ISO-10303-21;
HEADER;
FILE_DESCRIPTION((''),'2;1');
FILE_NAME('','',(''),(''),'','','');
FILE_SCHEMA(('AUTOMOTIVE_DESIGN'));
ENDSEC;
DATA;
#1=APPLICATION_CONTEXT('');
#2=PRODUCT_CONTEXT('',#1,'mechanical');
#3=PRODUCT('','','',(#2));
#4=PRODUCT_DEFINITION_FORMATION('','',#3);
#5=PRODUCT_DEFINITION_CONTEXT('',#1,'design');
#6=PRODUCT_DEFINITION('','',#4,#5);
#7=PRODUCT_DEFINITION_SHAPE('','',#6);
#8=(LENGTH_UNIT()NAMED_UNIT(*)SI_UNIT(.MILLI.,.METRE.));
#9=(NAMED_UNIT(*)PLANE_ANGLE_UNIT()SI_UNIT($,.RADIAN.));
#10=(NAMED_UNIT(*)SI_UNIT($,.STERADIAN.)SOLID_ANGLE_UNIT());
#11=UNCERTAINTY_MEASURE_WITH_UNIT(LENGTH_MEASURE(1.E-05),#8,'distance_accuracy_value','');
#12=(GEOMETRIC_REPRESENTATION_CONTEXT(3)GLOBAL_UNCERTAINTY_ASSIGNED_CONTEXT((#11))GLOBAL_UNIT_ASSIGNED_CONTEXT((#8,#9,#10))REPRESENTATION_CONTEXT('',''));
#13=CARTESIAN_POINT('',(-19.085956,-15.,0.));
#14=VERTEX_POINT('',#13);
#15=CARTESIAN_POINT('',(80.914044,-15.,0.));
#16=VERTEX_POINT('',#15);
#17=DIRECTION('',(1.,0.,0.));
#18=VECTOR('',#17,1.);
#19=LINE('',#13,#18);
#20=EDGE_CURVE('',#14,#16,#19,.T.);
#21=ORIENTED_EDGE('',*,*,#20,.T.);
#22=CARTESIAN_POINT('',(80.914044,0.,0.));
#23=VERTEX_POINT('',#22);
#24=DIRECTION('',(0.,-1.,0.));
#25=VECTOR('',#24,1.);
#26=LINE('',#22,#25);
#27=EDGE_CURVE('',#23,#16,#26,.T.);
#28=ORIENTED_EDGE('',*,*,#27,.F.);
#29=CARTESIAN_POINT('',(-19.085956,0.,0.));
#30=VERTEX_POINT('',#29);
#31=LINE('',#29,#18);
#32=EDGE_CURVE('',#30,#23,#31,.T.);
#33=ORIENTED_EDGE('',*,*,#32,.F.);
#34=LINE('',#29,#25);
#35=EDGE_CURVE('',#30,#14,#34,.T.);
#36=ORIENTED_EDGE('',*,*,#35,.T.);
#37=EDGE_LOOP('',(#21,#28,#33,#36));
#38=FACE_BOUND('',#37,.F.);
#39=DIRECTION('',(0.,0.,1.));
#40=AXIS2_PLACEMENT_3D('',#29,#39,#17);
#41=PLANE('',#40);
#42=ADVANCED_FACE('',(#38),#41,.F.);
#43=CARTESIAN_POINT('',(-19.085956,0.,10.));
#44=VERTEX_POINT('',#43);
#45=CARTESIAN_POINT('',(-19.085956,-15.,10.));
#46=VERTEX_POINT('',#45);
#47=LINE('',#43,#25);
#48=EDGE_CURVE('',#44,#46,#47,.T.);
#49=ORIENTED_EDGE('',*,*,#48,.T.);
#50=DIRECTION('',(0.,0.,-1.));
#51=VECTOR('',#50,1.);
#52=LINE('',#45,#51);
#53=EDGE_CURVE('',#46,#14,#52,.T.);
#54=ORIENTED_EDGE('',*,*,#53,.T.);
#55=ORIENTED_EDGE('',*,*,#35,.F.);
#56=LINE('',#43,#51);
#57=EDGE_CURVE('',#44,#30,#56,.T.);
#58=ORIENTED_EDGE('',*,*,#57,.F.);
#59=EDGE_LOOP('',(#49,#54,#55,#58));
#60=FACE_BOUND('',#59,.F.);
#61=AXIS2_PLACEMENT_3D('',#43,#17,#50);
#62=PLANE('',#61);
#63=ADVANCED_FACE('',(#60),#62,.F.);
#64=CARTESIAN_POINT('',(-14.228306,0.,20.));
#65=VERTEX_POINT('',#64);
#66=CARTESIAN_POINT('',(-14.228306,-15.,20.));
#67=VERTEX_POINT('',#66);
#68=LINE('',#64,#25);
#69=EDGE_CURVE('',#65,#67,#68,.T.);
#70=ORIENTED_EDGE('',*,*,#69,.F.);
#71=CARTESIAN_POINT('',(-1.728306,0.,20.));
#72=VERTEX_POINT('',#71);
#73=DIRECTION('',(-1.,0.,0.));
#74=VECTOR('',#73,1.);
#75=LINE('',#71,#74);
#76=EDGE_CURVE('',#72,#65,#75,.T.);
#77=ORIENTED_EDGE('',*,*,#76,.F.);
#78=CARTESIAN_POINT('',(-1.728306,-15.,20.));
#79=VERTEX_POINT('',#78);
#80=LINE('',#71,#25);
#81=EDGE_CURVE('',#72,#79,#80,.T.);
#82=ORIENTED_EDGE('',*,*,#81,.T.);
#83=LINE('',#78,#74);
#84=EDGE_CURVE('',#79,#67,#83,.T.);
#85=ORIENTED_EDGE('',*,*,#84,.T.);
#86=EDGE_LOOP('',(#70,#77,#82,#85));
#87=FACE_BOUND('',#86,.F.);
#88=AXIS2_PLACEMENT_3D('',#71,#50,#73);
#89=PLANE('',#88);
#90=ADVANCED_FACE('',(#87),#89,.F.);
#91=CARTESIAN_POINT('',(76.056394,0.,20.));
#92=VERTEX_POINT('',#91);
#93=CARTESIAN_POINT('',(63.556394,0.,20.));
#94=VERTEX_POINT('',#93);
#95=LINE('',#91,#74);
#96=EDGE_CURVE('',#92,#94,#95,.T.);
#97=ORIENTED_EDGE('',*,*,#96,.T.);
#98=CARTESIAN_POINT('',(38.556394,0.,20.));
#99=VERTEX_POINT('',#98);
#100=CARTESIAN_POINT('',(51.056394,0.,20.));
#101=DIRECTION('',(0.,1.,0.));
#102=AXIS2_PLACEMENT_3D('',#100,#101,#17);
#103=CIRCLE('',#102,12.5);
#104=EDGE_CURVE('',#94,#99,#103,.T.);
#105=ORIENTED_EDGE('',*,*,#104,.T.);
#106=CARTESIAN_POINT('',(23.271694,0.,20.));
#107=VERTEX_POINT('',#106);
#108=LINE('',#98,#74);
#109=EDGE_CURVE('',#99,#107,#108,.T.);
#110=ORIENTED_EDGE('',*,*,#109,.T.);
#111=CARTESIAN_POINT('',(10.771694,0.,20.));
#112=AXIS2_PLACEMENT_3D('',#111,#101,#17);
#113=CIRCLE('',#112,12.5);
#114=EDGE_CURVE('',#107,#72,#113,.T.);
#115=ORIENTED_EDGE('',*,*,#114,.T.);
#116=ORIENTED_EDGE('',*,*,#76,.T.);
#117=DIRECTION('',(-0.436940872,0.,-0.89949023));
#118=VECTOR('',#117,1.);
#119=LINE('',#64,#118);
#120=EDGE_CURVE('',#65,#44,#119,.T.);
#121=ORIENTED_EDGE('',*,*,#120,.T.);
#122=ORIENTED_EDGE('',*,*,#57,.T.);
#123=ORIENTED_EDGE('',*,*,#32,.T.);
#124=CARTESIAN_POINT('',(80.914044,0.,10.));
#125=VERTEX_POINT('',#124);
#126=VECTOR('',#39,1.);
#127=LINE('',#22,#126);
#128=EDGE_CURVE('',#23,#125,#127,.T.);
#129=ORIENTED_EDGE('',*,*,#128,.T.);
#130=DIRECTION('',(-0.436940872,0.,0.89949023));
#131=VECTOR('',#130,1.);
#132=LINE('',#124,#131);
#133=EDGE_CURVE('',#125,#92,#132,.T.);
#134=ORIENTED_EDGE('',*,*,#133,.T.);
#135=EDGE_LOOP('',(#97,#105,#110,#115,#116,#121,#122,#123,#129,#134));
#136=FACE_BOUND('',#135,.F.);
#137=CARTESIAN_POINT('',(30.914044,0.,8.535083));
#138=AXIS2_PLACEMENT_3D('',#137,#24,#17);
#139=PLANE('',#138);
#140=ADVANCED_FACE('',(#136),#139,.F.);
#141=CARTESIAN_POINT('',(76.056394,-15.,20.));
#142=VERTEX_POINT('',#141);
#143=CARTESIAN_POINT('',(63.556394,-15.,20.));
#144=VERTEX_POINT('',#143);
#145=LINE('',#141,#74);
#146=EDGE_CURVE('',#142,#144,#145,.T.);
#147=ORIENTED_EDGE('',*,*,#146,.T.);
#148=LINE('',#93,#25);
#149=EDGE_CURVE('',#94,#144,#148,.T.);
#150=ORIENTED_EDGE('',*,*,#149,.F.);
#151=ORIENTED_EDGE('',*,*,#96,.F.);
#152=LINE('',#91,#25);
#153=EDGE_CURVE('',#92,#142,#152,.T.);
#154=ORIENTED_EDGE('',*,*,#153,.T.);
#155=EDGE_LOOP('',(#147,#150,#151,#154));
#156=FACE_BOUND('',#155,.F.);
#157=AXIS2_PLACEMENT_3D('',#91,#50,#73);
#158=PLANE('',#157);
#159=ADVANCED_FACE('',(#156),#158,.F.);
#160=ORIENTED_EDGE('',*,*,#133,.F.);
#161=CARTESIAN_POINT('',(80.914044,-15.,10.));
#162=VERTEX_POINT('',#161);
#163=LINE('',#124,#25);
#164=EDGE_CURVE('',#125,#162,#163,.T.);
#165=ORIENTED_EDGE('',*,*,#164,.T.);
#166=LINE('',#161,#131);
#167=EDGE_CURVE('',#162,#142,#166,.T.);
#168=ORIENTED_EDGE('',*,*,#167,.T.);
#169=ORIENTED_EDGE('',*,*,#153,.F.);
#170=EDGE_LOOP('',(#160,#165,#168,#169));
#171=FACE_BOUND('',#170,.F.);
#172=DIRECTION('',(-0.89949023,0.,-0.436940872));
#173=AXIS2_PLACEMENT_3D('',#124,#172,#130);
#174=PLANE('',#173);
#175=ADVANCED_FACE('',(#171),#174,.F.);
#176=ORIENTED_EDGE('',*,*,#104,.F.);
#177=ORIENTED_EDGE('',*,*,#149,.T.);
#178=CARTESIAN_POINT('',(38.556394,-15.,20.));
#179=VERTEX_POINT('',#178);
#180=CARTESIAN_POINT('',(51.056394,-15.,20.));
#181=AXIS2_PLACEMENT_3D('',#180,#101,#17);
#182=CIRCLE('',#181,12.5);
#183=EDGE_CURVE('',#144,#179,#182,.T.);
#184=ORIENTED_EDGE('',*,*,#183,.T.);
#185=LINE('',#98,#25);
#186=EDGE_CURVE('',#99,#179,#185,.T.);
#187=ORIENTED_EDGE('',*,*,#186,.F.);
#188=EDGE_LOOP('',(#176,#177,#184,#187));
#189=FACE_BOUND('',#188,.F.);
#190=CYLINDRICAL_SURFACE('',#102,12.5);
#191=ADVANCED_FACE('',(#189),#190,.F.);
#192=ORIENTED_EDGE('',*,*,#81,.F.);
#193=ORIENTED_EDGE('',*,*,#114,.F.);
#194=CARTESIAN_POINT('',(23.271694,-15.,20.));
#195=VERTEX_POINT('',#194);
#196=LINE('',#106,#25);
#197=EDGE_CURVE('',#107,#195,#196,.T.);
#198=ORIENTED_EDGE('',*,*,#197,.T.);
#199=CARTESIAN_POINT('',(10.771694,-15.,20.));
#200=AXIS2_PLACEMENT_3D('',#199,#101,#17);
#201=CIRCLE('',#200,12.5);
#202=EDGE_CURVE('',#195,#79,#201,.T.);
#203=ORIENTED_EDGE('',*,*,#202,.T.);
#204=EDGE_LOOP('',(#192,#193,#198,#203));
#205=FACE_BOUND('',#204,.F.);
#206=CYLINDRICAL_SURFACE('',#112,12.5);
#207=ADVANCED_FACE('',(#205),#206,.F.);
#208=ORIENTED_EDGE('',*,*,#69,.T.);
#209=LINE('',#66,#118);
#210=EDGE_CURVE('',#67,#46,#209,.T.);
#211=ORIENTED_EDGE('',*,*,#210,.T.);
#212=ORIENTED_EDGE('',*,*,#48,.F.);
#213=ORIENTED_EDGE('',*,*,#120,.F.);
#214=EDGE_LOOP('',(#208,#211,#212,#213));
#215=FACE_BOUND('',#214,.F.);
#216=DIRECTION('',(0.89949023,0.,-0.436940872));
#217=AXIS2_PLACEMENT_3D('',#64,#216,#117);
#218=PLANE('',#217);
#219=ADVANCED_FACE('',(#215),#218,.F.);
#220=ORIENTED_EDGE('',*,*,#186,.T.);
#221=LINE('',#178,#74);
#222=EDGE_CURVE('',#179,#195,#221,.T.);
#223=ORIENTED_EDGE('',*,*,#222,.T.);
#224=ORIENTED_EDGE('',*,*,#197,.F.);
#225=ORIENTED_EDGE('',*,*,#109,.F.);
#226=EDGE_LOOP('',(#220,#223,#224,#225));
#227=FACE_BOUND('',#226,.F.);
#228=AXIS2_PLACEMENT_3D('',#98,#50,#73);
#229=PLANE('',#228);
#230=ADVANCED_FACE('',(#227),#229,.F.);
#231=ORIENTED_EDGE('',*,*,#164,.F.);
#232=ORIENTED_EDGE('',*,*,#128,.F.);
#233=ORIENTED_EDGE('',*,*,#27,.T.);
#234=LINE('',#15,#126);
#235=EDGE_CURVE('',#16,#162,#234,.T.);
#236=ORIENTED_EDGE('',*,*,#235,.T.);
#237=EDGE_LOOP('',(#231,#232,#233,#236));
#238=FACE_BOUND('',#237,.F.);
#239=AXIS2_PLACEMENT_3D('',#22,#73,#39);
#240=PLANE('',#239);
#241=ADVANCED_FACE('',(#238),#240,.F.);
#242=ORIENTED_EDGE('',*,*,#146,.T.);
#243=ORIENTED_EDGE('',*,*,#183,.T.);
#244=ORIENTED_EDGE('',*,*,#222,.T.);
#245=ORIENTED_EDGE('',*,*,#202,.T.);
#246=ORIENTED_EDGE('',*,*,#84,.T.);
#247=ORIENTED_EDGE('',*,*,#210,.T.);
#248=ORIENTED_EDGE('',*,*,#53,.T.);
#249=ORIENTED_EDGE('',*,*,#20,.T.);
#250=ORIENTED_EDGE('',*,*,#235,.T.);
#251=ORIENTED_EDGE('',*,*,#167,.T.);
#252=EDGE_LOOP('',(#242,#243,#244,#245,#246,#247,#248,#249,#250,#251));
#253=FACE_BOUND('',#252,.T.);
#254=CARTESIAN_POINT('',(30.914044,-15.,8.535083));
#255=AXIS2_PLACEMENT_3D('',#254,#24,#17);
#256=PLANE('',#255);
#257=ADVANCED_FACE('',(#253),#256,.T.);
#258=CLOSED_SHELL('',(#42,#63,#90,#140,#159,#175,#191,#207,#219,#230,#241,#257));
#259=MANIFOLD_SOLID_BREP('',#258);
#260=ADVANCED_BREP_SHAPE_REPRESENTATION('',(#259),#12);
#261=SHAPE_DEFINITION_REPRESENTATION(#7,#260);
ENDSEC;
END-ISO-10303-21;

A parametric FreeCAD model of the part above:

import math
import FreeCAD as App
import Part
import Sketcher
from FreeCAD import Vector
Q = App.Units.Quantity

doc = App.newDocument("Part")
body = doc.addObject("PartDesign::Body", "Body")

# Sketch on XZ plane
sketch1 = doc.addObject("Sketcher::SketchObject", "Sketch")
body.addObject(sketch1)
sketch1.AttachmentSupport = (doc.XZ_Plane, [""])
sketch1.MapMode = "FlatFace"
sketch1.addGeometry(Part.LineSegment(Vector(-19, 10, 0), Vector(-19, 0, 0)), False)
sketch1.addGeometry(Part.LineSegment(Vector(-19, 0, 0), Vector(81, 0, 0)), False)
sketch1.addGeometry(Part.LineSegment(Vector(81, 0, 0), Vector(81, 10, 0)), False)
sketch1.addGeometry(Part.LineSegment(Vector(81, 10, 0), Vector(76, 20, 0)), False)
sketch1.addGeometry(Part.LineSegment(Vector(76, 20, 0), Vector(64, 20, 0)), False)
sketch1.addGeometry(Part.ArcOfCircle(Part.Circle(Vector(51, 20, 0), Vector(0, 0, 1), 12), math.radians(180), math.radians(360)), False)
sketch1.addGeometry(Part.LineSegment(Vector(39, 20, 0), Vector(23, 20, 0)), False)
sketch1.addGeometry(Part.ArcOfCircle(Part.Circle(Vector(11, 20, 0), Vector(0, 0, 1), 12), math.radians(180), math.radians(360)), False)
sketch1.addGeometry(Part.LineSegment(Vector(-2, 20, 0), Vector(-14, 20, 0)), False)
sketch1.addGeometry(Part.LineSegment(Vector(-14, 20, 0), Vector(-19, 10, 0)), False)
sketch1.addConstraint(Sketcher.Constraint("Coincident", 0, 2, 1, 1))
sketch1.addConstraint(Sketcher.Constraint("Coincident", 1, 2, 2, 1))
sketch1.addConstraint(Sketcher.Constraint("Coincident", 2, 2, 3, 1))
sketch1.addConstraint(Sketcher.Constraint("Coincident", 3, 2, 4, 1))
sketch1.addConstraint(Sketcher.Constraint("Coincident", 4, 2, 5, 2))
sketch1.addConstraint(Sketcher.Constraint("Coincident", 5, 1, 6, 1))
sketch1.addConstraint(Sketcher.Constraint("Coincident", 6, 2, 7, 2))
sketch1.addConstraint(Sketcher.Constraint("Coincident", 7, 1, 8, 1))
sketch1.addConstraint(Sketcher.Constraint("Coincident", 8, 2, 9, 1))
sketch1.addConstraint(Sketcher.Constraint("Coincident", 9, 2, 0, 1))
sketch1.addConstraint(Sketcher.Constraint("Vertical", 0))
sketch1.addConstraint(Sketcher.Constraint("Horizontal", 1))
sketch1.addConstraint(Sketcher.Constraint("Vertical", 2))
sketch1.addConstraint(Sketcher.Constraint("Horizontal", 4))
sketch1.addConstraint(Sketcher.Constraint("Horizontal", 6))
sketch1.addConstraint(Sketcher.Constraint("Horizontal", 8))
sketch1.addConstraint(Sketcher.Constraint("Equal", 5, 7))
sketch1.addConstraint(Sketcher.Constraint("PointOnObject", 0, 2, -1))
sketch1.addConstraint(Sketcher.Constraint("Horizontal", 5, 3, 7, 3))
sketch1.addConstraint(Sketcher.Constraint("Horizontal", 7, 3, 3, 2))
sketch1.addConstraint(Sketcher.Constraint("Horizontal", 4, 2, 5, 1))
sketch1.addConstraint(Sketcher.Constraint("Horizontal", 6, 2, 7, 1))
sketch1.addConstraint(Sketcher.Constraint("Horizontal", 2, 2, 9, 2))
sketch1.addConstraint(Sketcher.Constraint("Equal", 4, 8))
sketch1.addConstraint(Sketcher.Constraint("Equal", 3, 9))
sketch1.addConstraint(Sketcher.Constraint("Radius", 5, Q("12.5 mm")))
sketch1.addConstraint(Sketcher.Constraint("DistanceX", 1, 1, 1, 2, Q("100 mm")))
sketch1.addConstraint(Sketcher.Constraint("DistanceY", 0, 2, 0, 1, Q("10 mm")))
sketch1.addConstraint(Sketcher.Constraint("DistanceX", 4, 2, 4, 1, Q("12.5 mm")))
sketch1.addConstraint(Sketcher.Constraint("DistanceY", -1, 1, 5, 3, Q("20 mm")))
sketch1.addConstraint(Sketcher.Constraint("DistanceX", 6, 2, 6, 1, Q("15.2847 mm")))
sketch1.addConstraint(Sketcher.Constraint("DistanceX", -1, 1, 5, 3, Q("51.056394 mm")))
pad1 = doc.addObject("PartDesign::Pad", "Pad")
body.addObject(pad1)
pad1.Profile = sketch1
pad1.Length = 15

doc.recompute()
